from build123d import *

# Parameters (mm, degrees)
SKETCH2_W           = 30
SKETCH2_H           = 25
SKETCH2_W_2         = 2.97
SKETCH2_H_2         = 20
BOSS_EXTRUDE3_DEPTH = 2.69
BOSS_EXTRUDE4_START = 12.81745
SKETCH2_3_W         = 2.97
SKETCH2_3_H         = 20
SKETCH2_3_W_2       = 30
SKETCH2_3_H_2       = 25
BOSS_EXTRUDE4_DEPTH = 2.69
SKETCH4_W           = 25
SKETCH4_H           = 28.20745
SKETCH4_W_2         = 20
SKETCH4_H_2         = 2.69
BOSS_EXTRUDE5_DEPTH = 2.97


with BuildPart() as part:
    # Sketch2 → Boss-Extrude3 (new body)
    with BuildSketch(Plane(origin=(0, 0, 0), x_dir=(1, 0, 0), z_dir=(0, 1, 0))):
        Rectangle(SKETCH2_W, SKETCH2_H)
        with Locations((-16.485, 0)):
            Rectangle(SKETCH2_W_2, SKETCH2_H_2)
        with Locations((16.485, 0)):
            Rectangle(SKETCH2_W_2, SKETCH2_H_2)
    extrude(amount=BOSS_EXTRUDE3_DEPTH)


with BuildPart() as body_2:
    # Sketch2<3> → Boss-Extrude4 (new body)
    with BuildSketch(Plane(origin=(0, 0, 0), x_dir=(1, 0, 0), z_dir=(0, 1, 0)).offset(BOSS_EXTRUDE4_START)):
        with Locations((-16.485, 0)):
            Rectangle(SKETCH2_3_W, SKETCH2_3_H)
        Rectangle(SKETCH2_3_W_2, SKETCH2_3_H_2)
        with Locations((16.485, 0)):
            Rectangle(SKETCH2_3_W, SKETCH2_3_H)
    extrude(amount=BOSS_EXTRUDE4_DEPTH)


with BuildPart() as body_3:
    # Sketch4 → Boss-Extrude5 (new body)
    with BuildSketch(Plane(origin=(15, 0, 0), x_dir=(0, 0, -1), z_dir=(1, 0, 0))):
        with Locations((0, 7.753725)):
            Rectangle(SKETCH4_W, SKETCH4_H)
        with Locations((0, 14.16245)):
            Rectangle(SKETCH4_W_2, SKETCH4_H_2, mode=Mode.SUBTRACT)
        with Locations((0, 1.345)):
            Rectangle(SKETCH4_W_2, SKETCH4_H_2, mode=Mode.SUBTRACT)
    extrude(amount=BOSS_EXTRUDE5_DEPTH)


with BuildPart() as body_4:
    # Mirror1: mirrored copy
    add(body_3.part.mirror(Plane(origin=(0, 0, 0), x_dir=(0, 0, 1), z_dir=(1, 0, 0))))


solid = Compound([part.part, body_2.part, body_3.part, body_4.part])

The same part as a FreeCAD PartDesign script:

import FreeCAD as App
import Part
import Sketcher


def add_polygon(sketch, points):
    """Adds a closed chain of lines whose ends are joined by coincident constraints."""
    first, n = sketch.GeometryCount, len(points)
    for a, b in zip(points, points[1:] + points[:1]):
        sketch.addGeometry(Part.LineSegment(App.Vector(*a, 0), App.Vector(*b, 0)), False)
    for i in range(n):
        sketch.addConstraint(Sketcher.Constraint("Coincident", first + i, 2, first + (i + 1) % n, 1))

doc = App.newDocument("Part")
body = doc.addObject("PartDesign::Body", "Body")

# Sketch on XZ plane
sketch1 = doc.addObject("Sketcher::SketchObject", "Sketch")
body.addObject(sketch1)
sketch1.AttachmentSupport = (doc.XZ_Plane, [""])
sketch1.MapMode = "FlatFace"
add_polygon(sketch1, [(-15, 10), (-15, 12.5), (15, 12.5), (15, 10), (18, 10), (18, -10), (15, -10), (15, -12.5), (-15, -12.5), (-15, -10), (-18, -10), (-18, 10)])  # lines 0-11
sketch1.addConstraint([
    Sketcher.Constraint("Vertical", 0),
    Sketcher.Constraint("Horizontal", 1),
    Sketcher.Constraint("Vertical", 2),
    Sketcher.Constraint("Horizontal", 3),
    Sketcher.Constraint("Vertical", 4),
    Sketcher.Constraint("Horizontal", 5),
    Sketcher.Constraint("Vertical", 6),
    Sketcher.Constraint("Horizontal", 7),
    Sketcher.Constraint("Vertical", 8),
    Sketcher.Constraint("Horizontal", 9),
    Sketcher.Constraint("Vertical", 10),
    Sketcher.Constraint("Horizontal", 11),
    Sketcher.Constraint("Symmetric", 0, 2, 6, 2, -1, 1),
    Sketcher.Constraint("Symmetric", 2, 2, 8, 2, -1, 1),
    Sketcher.Constraint("Symmetric", 4, 2, 10, 2, -1, 1),
    Sketcher.Constraint("Symmetric", 5, 2, 8, 2, -2),
    Sketcher.Constraint("DistanceX", 1, 1, 1, 2, 30.0),
    Sketcher.Constraint("DistanceY", 4, 2, 4, 1, 20.0),
    Sketcher.Constraint("DistanceY", 0, 1, 0, 2, 2.5),
    Sketcher.Constraint("DistanceX", 3, 1, 3, 2, 2.97),
])
pad1 = doc.addObject("PartDesign::Pad", "Pad")
body.addObject(pad1)
pad1.Profile = sketch1
pad1.Length = 2.69
pad1.Reversed = True
body2 = doc.addObject("PartDesign::Body", "Body001")

# Sketch on XZ plane
sketch2 = doc.addObject("Sketcher::SketchObject", "Sketch001")
body2.addObject(sketch2)
sketch2.AttachmentSupport = (doc.getObject("XZ_Plane001"), [""])
sketch2.MapMode = "FlatFace"
sketch2.AttachmentOffset = App.Placement(App.Vector(0, 0, -12.81745), App.Rotation())
add_polygon(sketch2, [(-18, -10), (-18, 10), (-15, 10), (-15, 12.5), (15, 12.5), (15, 10), (18, 10), (18, -10), (15, -10), (15, -12.5), (-15, -12.5), (-15, -10)])  # lines 0-11
sketch2.addConstraint([
    Sketcher.Constraint("Vertical", 0),
    Sketcher.Constraint("Horizontal", 1),
    Sketcher.Constraint("Vertical", 2),
    Sketcher.Constraint("Horizontal", 3),
    Sketcher.Constraint("Vertical", 4),
    Sketcher.Constraint("Horizontal", 5),
    Sketcher.Constraint("Vertical", 6),
    Sketcher.Constraint("Horizontal", 7),
    Sketcher.Constraint("Vertical", 8),
    Sketcher.Constraint("Horizontal", 9),
    Sketcher.Constraint("Vertical", 10),
    Sketcher.Constraint("Horizontal", 11),
    Sketcher.Constraint("Symmetric", 0, 2, 6, 2, -1, 1),
    Sketcher.Constraint("Symmetric", 2, 2, 8, 2, -1, 1),
    Sketcher.Constraint("Symmetric", 4, 2, 10, 2, -1, 1),
    Sketcher.Constraint("Symmetric", 1, 2, 4, 2, -2),
    Sketcher.Constraint("DistanceX", 3, 1, 3, 2, 30.0),
    Sketcher.Constraint("DistanceY", 0, 1, 0, 2, 20.0),
    Sketcher.Constraint("DistanceY", 2, 1, 2, 2, 2.5),
    Sketcher.Constraint("DistanceX", 1, 1, 1, 2, 2.97),
])
pad2 = doc.addObject("PartDesign::Pad", "Pad001")
body2.addObject(pad2)
pad2.Profile = sketch2
pad2.Length = 2.69
pad2.Reversed = True
body3 = doc.addObject("PartDesign::Body", "Body002")

# Sketch on YZ plane
sketch3 = doc.addObject("Sketcher::SketchObject", "Sketch002")
body3.addObject(sketch3)
sketch3.AttachmentSupport = (doc.getObject("YZ_Plane002"), [""])
sketch3.MapMode = "FlatFace"
sketch3.AttachmentOffset = App.Placement(App.Vector(0, 0, 15), App.Rotation())
add_polygon(sketch3, [(21.9, 12.5), (-6.3, 12.5), (-6.3, -12.5), (21.9, -12.5)])  # lines 0-3
add_polygon(sketch3, [(0, -10), (0, 10), (2.7, 10), (2.7, -10)])  # lines 4-7
add_polygon(sketch3, [(12.8, -10), (12.8, 10), (15.5, 10), (15.5, -10)])  # lines 8-11
sketch3.addConstraint([
    Sketcher.Constraint("Horizontal", 0),
    Sketcher.Constraint("Vertical", 1),
    Sketcher.Constraint("Horizontal", 2),
    Sketcher.Constraint("Vertical", 3),
    Sketcher.Constraint("Vertical", 4),
    Sketcher.Constraint("Horizontal", 5),
    Sketcher.Constraint("Vertical", 6),
    Sketcher.Constraint("Horizontal", 7),
    Sketcher.Constraint("Vertical", 8),
    Sketcher.Constraint("Horizontal", 9),
    Sketcher.Constraint("Vertical", 10),
    Sketcher.Constraint("Horizontal", 11),
    Sketcher.Constraint("Symmetric", 4, 2, 7, 2, -1, 1),
    Sketcher.Constraint("Horizontal", 5, 2, 8, 2),
    Sketcher.Constraint("Horizontal", 7, 2, 10, 2),
    Sketcher.Constraint("Equal", 7, 9),
    Sketcher.Constraint("DistanceY", 1, 2, 1, 1, 25.0),
    Sketcher.Constraint("DistanceY", 4, 1, 4, 2, 20.0),
    Sketcher.Constraint("DistanceX", 5, 1, 5, 2, 2.69),
    Sketcher.Constraint("DistanceY", -1, 1, 0, 2, 12.5),
    Sketcher.Constraint("DistanceX", 0, 2, -1, 1, 6.35),
    Sketcher.Constraint("DistanceX", 8, 2, 3, 2, 9.04),
    Sketcher.Constraint("DistanceX", 0, 2, 0, 1, 28.20745),
])
pad3 = doc.addObject("PartDesign::Pad", "Pad002")
body3.addObject(pad3)
pad3.Profile = sketch3
pad3.Length = 2.97
body4 = doc.addObject("PartDesign::Body", "Body003")
doc.recompute()

mirroring = doc.addObject("Part::Mirroring", "Mirroring")
mirroring.Source = body3
mirroring.Base = App.Vector(0, 0, 0)
mirroring.Normal = App.Vector(1, 0, 0)
body4.BaseFeature = mirroring
doc.recompute()
mirroring.Visibility = False

doc.recompute()
